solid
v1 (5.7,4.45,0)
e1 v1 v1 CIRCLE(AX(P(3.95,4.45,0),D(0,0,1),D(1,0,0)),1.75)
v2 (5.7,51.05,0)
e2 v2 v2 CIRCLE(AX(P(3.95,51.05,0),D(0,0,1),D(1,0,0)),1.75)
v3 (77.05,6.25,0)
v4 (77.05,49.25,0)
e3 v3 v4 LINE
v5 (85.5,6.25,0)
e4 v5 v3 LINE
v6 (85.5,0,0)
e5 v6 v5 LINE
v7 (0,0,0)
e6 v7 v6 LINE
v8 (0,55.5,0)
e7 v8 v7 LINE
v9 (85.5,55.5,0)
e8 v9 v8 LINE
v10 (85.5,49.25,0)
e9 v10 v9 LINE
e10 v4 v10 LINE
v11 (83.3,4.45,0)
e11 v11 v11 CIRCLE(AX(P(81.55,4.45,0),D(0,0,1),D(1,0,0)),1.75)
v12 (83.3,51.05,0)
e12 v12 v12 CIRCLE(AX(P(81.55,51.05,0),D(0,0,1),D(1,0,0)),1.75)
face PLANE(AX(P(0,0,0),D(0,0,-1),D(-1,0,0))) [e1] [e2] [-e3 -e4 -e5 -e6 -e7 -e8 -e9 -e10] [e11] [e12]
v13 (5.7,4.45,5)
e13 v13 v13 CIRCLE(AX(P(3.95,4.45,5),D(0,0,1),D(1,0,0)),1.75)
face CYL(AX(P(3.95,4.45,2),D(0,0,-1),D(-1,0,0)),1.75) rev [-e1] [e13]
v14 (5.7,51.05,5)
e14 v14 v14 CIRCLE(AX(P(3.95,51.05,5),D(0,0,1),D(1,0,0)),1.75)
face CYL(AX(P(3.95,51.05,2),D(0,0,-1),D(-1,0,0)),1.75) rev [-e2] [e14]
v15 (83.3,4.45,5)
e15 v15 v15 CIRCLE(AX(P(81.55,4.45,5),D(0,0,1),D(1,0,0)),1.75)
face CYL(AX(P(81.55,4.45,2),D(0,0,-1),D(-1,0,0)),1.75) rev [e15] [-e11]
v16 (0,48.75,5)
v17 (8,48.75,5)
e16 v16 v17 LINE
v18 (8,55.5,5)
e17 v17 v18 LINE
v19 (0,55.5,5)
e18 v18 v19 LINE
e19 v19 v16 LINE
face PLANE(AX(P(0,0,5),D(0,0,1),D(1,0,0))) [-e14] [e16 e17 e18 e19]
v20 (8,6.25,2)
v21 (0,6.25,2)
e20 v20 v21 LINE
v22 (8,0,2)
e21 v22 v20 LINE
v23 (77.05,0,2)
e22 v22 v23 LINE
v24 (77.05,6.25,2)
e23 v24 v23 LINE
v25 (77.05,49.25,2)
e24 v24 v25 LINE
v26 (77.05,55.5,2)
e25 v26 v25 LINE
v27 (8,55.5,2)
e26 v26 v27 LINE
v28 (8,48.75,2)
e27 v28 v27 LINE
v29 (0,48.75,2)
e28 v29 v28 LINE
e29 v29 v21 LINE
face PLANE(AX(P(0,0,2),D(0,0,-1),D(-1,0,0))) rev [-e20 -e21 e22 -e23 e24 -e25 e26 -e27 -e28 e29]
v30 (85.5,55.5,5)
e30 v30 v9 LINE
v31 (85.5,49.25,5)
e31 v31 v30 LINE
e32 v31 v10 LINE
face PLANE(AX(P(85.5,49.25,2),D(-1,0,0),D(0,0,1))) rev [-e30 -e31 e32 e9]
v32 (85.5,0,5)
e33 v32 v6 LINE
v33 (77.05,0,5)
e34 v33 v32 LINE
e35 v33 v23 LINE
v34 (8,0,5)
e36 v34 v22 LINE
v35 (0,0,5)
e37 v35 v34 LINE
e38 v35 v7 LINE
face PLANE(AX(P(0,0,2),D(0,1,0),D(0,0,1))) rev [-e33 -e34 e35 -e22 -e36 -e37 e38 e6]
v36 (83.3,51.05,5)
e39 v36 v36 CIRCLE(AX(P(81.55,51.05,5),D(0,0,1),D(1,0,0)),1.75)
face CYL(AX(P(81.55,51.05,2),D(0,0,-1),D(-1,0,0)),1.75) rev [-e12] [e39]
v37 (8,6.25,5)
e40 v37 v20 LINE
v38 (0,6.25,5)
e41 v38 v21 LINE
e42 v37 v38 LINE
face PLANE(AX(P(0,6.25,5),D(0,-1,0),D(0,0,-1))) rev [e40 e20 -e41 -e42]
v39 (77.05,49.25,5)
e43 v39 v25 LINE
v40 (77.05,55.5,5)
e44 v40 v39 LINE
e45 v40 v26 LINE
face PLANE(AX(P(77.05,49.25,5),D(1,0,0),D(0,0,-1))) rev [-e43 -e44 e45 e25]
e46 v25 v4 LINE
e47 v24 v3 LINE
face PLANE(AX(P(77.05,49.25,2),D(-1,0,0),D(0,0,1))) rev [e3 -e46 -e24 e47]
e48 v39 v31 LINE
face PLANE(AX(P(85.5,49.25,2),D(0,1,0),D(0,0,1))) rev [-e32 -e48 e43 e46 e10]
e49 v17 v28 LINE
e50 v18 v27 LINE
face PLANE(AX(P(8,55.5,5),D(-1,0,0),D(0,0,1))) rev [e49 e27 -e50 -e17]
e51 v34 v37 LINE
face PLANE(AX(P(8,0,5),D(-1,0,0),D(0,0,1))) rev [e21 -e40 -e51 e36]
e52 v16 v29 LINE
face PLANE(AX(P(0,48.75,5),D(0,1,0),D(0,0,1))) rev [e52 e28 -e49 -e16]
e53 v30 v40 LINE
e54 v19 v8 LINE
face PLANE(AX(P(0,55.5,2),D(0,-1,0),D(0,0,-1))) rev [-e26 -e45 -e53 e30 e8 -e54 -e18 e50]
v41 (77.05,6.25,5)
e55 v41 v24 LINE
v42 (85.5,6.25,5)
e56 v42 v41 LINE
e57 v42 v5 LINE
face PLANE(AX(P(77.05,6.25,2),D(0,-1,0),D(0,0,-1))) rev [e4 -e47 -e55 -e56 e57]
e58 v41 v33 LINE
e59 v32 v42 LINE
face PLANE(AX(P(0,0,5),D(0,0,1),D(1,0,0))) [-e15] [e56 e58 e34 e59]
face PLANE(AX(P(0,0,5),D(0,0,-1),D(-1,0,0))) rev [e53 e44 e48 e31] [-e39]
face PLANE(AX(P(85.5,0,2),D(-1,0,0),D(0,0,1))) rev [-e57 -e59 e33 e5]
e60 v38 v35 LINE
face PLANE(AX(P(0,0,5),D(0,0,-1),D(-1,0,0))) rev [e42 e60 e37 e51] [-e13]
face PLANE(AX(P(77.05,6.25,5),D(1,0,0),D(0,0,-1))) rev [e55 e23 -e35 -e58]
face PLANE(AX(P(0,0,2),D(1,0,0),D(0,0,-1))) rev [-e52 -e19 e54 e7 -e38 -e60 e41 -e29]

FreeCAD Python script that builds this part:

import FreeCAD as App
import Part
import Sketcher
from FreeCAD import Vector
Q = App.Units.Quantity


def add_polygon(sketch, points):
    """Adds a closed chain of lines whose ends are joined by coincident constraints."""
    first, n = sketch.GeometryCount, len(points)
    for a, b in zip(points, points[1:] + points[:1]):
        sketch.addGeometry(Part.LineSegment(App.Vector(*a, 0), App.Vector(*b, 0)), False)
    for i in range(n):
        sketch.addConstraint(Sketcher.Constraint("Coincident", first + i, 2, first + (i + 1) % n, 1))

doc = App.newDocument("Part")
body = doc.addObject("PartDesign::Body", "Body")

sketch1 = body.newObject("Sketcher::SketchObject", "Sketch")
sketch1.AttachmentSupport = (doc.getObject("XY_Plane"), [""])
sketch1.MapMode = "FlatFace"
add_polygon(sketch1, [(77, 49.2), (85.5, 49.2), (85.5, 55.5), (0, 55.5), (0, 0), (85.5, 0), (85.5, 6.2), (77, 6.2)])
sketch1.addGeometry(Part.Circle(Vector(81.5, 4.5, 0), Vector(0, 0, 1), 1.8), False)
sketch1.addGeometry(Part.Circle(Vector(4, 4.5, 0), Vector(0, 0, 1), 1.8), False)
sketch1.addGeometry(Part.Circle(Vector(81.5, 51, 0), Vector(0, 0, 1), 1.8), False)
sketch1.addGeometry(Part.Circle(Vector(4, 51, 0), Vector(0, 0, 1), 1.8), False)
sketch1.addConstraint(Sketcher.Constraint("Horizontal", 0))
sketch1.addConstraint(Sketcher.Constraint("Vertical", 1))
sketch1.addConstraint(Sketcher.Constraint("Horizontal", 2))
sketch1.addConstraint(Sketcher.Constraint("Vertical", 3))
sketch1.addConstraint(Sketcher.Constraint("Horizontal", 4))
sketch1.addConstraint(Sketcher.Constraint("Vertical", 5))
sketch1.addConstraint(Sketcher.Constraint("Horizontal", 6))
sketch1.addConstraint(Sketcher.Constraint("Vertical", 7))
sketch1.addConstraint(Sketcher.Constraint("Coincident", 3, 2, -1, 1))
sketch1.addConstraint(Sketcher.Constraint("Equal", 8, 9))
sketch1.addConstraint(Sketcher.Constraint("Equal", 9, 10))
sketch1.addConstraint(Sketcher.Constraint("Equal", 10, 11))
sketch1.addConstraint(Sketcher.Constraint("Horizontal", 8, 3, 9, 3))
sketch1.addConstraint(Sketcher.Constraint("Horizontal", 10, 3, 11, 3))
sketch1.addConstraint(Sketcher.Constraint("Vertical", 8, 3, 10, 3))
sketch1.addConstraint(Sketcher.Constraint("Vertical", 9, 3, 11, 3))
sketch1.addConstraint(Sketcher.Constraint("Vertical", 1, 2, 4, 2))
sketch1.addConstraint(Sketcher.Constraint("Equal", 1, 5))
sketch1.addConstraint(Sketcher.Constraint("Diameter", 8, Q("3.5 mm")))
sketch1.addConstraint(Sketcher.Constraint("DistanceY", 7, 1, 7, 2, Q("43 mm")))
sketch1.addConstraint(Sketcher.Constraint("DistanceX", 2, 2, 2, 1, Q("85.5 mm")))
sketch1.addConstraint(Sketcher.Constraint("DistanceY", 3, 2, 3, 1, Q("55.5 mm")))
sketch1.addConstraint(Sketcher.Constraint("DistanceX", 0, 1, 0, 2, Q("8.45 mm")))
sketch1.addConstraint(Sketcher.Constraint("DistanceX", 9, 3, 8, 3, Q("77.6 mm")))
sketch1.addConstraint(Sketcher.Constraint("DistanceY", 8, 3, 10, 3, Q("46.6 mm")))
sketch1.addConstraint(Sketcher.Constraint("DistanceY", 0, 2, 10, 3, Q("1.8 mm")))
sketch1.addConstraint(Sketcher.Constraint("DistanceX", 6, 2, 8, 3, Q("4.5 mm")))
pad1 = body.newObject("PartDesign::Pad", "Pad")
pad1.Profile = sketch1
pad1.Length = 2

sketch2 = body.newObject("Sketcher::SketchObject", "Sketch001")
sketch2.AttachmentSupport = (doc.getObject("XY_Plane"), [""])
sketch2.MapMode = "FlatFace"
sketch2.AttachmentOffset = App.Placement(Vector(0, 0, 2), App.Rotation())
add_polygon(sketch2, [(0, 55.5), (0, 48.8), (8, 48.8), (8, 55.5)])
sketch2.addGeometry(Part.Circle(Vector(4, 51, 0), Vector(0, 0, 1), 1.8), False)
add_polygon(sketch2, [(0, 6.2), (0, 0), (8, 0), (8, 6.2)])
sketch2.addGeometry(Part.Circle(Vector(4, 4.5, 0), Vector(0, 0, 1), 1.8), False)
add_polygon(sketch2, [(77, 55.5), (77, 49.2), (85.5, 49.2), (85.5, 55.5)])
sketch2.addGeometry(Part.Circle(Vector(81.5, 51, 0), Vector(0, 0, 1), 1.8), False)
add_polygon(sketch2, [(77, 6.2), (77, 0), (85.5, 0), (85.5, 6.2)])
sketch2.addGeometry(Part.Circle(Vector(81.5, 4.5, 0), Vector(0, 0, 1), 1.8), False)
sketch2.addConstraint(Sketcher.Constraint("Vertical", 0))
sketch2.addConstraint(Sketcher.Constraint("Horizontal", 1))
sketch2.addConstraint(Sketcher.Constraint("Vertical", 2))
sketch2.addConstraint(Sketcher.Constraint("Horizontal", 3))
sketch2.addConstraint(Sketcher.Constraint("Vertical", 5))
sketch2.addConstraint(Sketcher.Constraint("Horizontal", 6))
sketch2.addConstraint(Sketcher.Constraint("Vertical", 7))
sketch2.addConstraint(Sketcher.Constraint("Horizontal", 8))
sketch2.addConstraint(Sketcher.Constraint("Vertical", 10))
sketch2.addConstraint(Sketcher.Constraint("Horizontal", 11))
sketch2.addConstraint(Sketcher.Constraint("Vertical", 12))
sketch2.addConstraint(Sketcher.Constraint("Horizontal", 13))
sketch2.addConstraint(Sketcher.Constraint("Vertical", 15))
sketch2.addConstraint(Sketcher.Constraint("Horizontal", 16))
sketch2.addConstraint(Sketcher.Constraint("Vertical", 17))
sketch2.addConstraint(Sketcher.Constraint("Horizontal", 18))
sketch2.addConstraint(Sketcher.Constraint("Coincident", 5, 2, -1, 1))
sketch2.addConstraint(Sketcher.Constraint("Equal", 4, 9))
sketch2.addConstraint(Sketcher.Constraint("Equal", 9, 14))
sketch2.addConstraint(Sketcher.Constraint("Equal", 14, 19))
sketch2.addConstraint(Sketcher.Constraint("PointOnObject", 0, 2, -2))
sketch2.addConstraint(Sketcher.Constraint("PointOnObject", 15, 2, -1))
sketch2.addConstraint(Sketcher.Constraint("Horizontal", 4, 3, 14, 3))
sketch2.addConstraint(Sketcher.Constraint("Horizontal", 9, 3, 19, 3))
sketch2.addConstraint(Sketcher.Constraint("Horizontal", 3, 2, 12, 2))
sketch2.addConstraint(Sketcher.Constraint("Horizontal", 8, 2, 17, 2))
sketch2.addConstraint(Sketcher.Constraint("Vertical", 4, 3, 9, 3))
sketch2.addConstraint(Sketcher.Constraint("Vertical", 14, 3, 19, 3))
sketch2.addConstraint(Sketcher.Constraint("Vertical", 2, 2, 6, 2))
sketch2.addConstraint(Sketcher.Constraint("Vertical", 13, 2, 15, 2))
sketch2.addConstraint(Sketcher.Constraint("Vertical", 12, 2, 16, 2))
sketch2.addConstraint(Sketcher.Constraint("Equal", 7, 10))
sketch2.addConstraint(Sketcher.Constraint("Diameter", 4, Q("3.5 mm")))
sketch2.addConstraint(Sketcher.Constraint("DistanceX", 1, 1, 1, 2, Q("8 mm")))
sketch2.addConstraint(Sketcher.Constraint("DistanceY", 17, 2, 11, 2, Q("43 mm")))
sketch2.addConstraint(Sketcher.Constraint("DistanceX", 11, 1, 11, 2, Q("8.45 mm")))
sketch2.addConstraint(Sketcher.Constraint("DistanceY", 0, 2, 0, 1, Q("6.75 mm")))
sketch2.addConstraint(Sketcher.Constraint("DistanceY", 5, 2, 5, 1, Q("6.25 mm")))
sketch2.addConstraint(Sketcher.Constraint("DistanceX", -1, 1, 11, 2, Q("85.5 mm")))
sketch2.addConstraint(Sketcher.Constraint("DistanceY", 9, 3, 4, 3, Q("46.6 mm")))
sketch2.addConstraint(Sketcher.Constraint("DistanceX", 4, 3, 14, 3, Q("77.6 mm")))
sketch2.addConstraint(Sketcher.Constraint("DistanceY", 0, 2, 4, 3, Q("2.3 mm")))
sketch2.addConstraint(Sketcher.Constraint("DistanceX", 10, 2, 14, 3, Q("4.5 mm")))
pad2 = body.newObject("PartDesign::Pad", "Pad001")
pad2.Profile = sketch2
pad2.Length = 3

doc.recompute()
